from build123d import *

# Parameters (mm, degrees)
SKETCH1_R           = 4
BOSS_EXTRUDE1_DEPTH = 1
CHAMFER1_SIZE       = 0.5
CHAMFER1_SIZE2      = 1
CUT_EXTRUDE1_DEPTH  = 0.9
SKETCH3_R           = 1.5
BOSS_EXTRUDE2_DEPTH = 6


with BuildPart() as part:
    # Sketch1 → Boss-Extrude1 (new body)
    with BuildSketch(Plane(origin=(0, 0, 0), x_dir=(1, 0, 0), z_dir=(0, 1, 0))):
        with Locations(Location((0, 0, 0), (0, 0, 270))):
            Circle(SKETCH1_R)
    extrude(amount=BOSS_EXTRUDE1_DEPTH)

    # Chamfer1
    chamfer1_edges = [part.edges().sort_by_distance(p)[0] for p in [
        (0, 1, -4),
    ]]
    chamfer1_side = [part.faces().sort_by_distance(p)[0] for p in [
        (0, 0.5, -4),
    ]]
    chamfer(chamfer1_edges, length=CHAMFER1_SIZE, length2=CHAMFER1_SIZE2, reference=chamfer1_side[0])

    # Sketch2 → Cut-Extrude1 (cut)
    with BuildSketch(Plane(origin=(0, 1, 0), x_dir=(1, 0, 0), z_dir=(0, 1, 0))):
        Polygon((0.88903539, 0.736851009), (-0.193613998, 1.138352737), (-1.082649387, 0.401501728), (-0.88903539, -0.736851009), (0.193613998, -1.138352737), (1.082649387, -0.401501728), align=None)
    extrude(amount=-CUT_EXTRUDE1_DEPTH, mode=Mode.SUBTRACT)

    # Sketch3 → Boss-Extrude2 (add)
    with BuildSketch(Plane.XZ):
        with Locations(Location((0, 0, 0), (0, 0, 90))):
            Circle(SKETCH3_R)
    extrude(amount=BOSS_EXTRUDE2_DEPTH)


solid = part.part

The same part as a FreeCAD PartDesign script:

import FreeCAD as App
import Part
import Sketcher

V = App.Vector
Q = App.Units.Quantity


def edges_at(feature, points):
    """Names of the edges that pass closest to the given points."""
    edges = feature.Shape.Edges
    near = lambda p: min(range(len(edges)), key=lambda i: edges[i].distToShape(Part.Vertex(*p))[0])
    return sorted({f"Edge{near(p) + 1}" for p in points})

doc = App.newDocument("Part")
body = doc.addObject("PartDesign::Body", "Body")

# Sketch on XZ plane
sketch1 = body.newObject("Sketcher::SketchObject", "Sketch")
sketch1.AttachmentSupport = (doc.getObject("XZ_Plane"), [""])
sketch1.MapMode = "FlatFace"
sketch1.addGeometry(Part.Circle(V(0, 0, 0), V(0, 0, 1), 4), False)
sketch1.addConstraint([
    Sketcher.Constraint("Coincident", 0, 3, -1, 1),
    Sketcher.Constraint("Diameter", 0, Q("8 mm")),
])
pad1 = body.newObject("PartDesign::Pad", "Pad")
pad1.Profile = sketch1
pad1.Length = 1
pad1.Reversed = True
doc.recompute()

chamfer = body.newObject("PartDesign::Chamfer", "Chamfer")
chamfer.Base = (pad1, edges_at(pad1, [(0, 1, -4)]))
chamfer.ChamferType = "Two distances"
chamfer.Size = 0.5
chamfer.Size2 = 1

# Sketch on XZ plane
sketch2 = body.newObject("Sketcher::SketchObject", "Sketch001")
sketch2.AttachmentSupport = (doc.getObject("XZ_Plane"), [""])
sketch2.MapMode = "FlatFace"
sketch2.AttachmentOffset = App.Placement(V(0, 0, -1), App.Rotation())
sketch2.addGeometry([
    Part.LineSegment(V(0.9, -0.7, 0), V(-0.2, -1.1, 0)),  # 0
    Part.LineSegment(V(-0.2, -1.1, 0), V(-1.1, -0.4, 0)),  # 1
    Part.LineSegment(V(-1.1, -0.4, 0), V(-0.9, 0.7, 0)),  # 2
    Part.LineSegment(V(-0.9, 0.7, 0), V(0.2, 1.1, 0)),  # 3
    Part.LineSegment(V(0.2, 1.1, 0), V(1.1, 0.4, 0)),  # 4
    Part.LineSegment(V(1.1, 0.4, 0), V(0.9, -0.7, 0)),  # 5
], False)
sketch2.addConstraint([
    Sketcher.Constraint("Coincident", 0, 2, 1, 1),
    Sketcher.Constraint("Coincident", 1, 2, 2, 1),
    Sketcher.Constraint("Coincident", 2, 2, 3, 1),
    Sketcher.Constraint("Coincident", 3, 2, 4, 1),
    Sketcher.Constraint("Coincident", 4, 2, 5, 1),
    Sketcher.Constraint("Coincident", 5, 2, 0, 1),
    Sketcher.Constraint("Symmetric", 0, 2, 3, 2, -1, 1),
    Sketcher.Constraint("Symmetric", 1, 2, 4, 2, -1, 1),
    Sketcher.Constraint("Symmetric", 2, 2, 5, 2, -1, 1),
    Sketcher.Constraint("Equal", 0, 1),
    Sketcher.Constraint("Equal", 1, 2),
    Sketcher.Constraint("Distance", 0, Q("1.154701 mm")),
    Sketcher.Constraint("DistanceY", 1, 2, -1, 1, Q("0.401502 mm")),
    Sketcher.Constraint("DistanceY", 2, 2, 3, 2, Q("0.401502 mm")),
    Sketcher.Constraint("DistanceX", 1, 2, 4, 2, Q("2.165299 mm")),
])
pocket1 = body.newObject("PartDesign::Pocket", "Pocket")
pocket1.Profile = sketch2
pocket1.Length = 0.9
pocket1.Reversed = True

# Sketch on XZ plane
sketch3 = body.newObject("Sketcher::SketchObject", "Sketch002")
sketch3.AttachmentSupport = (doc.getObject("XZ_Plane"), [""])
sketch3.MapMode = "FlatFace"
sketch3.addGeometry(Part.Circle(V(0, 0, 0), V(0, 0, 1), 1.5), False)
sketch3.addConstraint([
    Sketcher.Constraint("Coincident", 0, 3, -1, 1),
    Sketcher.Constraint("Diameter", 0, Q("3 mm")),
])
pad2 = body.newObject("PartDesign::Pad", "Pad001")
pad2.Profile = sketch3
pad2.Length = 6

doc.recompute()
